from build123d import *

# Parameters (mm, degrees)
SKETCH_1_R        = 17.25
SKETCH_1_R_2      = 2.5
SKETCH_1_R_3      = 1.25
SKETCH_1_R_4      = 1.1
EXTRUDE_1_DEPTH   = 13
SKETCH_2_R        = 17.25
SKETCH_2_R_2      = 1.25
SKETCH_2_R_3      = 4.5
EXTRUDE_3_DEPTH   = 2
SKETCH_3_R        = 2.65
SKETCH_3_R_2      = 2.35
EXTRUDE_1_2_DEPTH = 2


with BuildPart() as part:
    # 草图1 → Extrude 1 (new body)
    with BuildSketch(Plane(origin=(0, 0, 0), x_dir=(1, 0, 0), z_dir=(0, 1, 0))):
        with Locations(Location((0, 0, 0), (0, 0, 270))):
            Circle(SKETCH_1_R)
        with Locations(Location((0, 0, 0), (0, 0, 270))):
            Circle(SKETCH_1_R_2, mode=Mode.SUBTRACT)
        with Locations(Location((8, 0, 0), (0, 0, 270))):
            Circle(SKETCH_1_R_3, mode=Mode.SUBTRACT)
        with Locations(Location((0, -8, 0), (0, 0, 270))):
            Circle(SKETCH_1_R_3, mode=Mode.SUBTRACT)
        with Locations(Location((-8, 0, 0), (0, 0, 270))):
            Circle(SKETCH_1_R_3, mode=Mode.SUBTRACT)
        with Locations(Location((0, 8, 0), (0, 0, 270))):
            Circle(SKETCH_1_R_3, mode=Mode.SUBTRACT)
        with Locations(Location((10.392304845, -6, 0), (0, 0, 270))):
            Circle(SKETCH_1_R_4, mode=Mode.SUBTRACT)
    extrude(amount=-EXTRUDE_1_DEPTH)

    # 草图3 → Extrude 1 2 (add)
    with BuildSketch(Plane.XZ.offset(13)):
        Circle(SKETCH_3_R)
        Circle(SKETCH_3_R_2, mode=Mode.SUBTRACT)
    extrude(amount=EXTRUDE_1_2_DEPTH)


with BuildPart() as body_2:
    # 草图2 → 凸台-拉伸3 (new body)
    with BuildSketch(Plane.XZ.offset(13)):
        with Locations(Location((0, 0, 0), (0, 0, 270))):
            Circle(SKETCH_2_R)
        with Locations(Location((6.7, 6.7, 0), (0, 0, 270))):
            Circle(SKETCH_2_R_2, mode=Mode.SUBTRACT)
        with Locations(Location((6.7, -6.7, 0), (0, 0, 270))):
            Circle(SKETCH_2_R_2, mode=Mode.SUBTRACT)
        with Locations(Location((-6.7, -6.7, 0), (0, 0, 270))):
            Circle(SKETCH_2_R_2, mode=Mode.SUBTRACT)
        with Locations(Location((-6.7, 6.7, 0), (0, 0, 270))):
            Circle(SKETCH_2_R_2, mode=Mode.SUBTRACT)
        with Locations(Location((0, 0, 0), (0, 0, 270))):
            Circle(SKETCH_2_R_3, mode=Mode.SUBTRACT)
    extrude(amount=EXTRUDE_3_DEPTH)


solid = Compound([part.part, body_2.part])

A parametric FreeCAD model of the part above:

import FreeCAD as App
import Part
import Sketcher
Q = App.Units.Quantity

doc = App.newDocument("Part")
body = doc.addObject("PartDesign::Body", "Body")

# Sketch on XZ plane
sketch1 = doc.addObject("Sketcher::SketchObject", "Sketch")
body.addObject(sketch1)
sketch1.AttachmentSupport = (doc.XZ_Plane, [""])
sketch1.MapMode = "FlatFace"
sketch1.addGeometry([
    Part.Circle(App.Vector(0, 0, 0), App.Vector(0, 0, 1), 17.25),  # 0
    Part.Circle(App.Vector(0, -8, 0), App.Vector(0, 0, 1), 1.25),  # 1
    Part.Circle(App.Vector(-8, 0, 0), App.Vector(0, 0, 1), 1.25),  # 2
    Part.Circle(App.Vector(0, 0, 0), App.Vector(0, 0, 1), 2.5),  # 3
    Part.Circle(App.Vector(0, 8, 0), App.Vector(0, 0, 1), 1.25),  # 4
    Part.Circle(App.Vector(8, 0, 0), App.Vector(0, 0, 1), 1.25),  # 5
    Part.Circle(App.Vector(10.392305, 6, 0), App.Vector(0, 0, 1), 1.1),  # 6
], False)
sketch1.addConstraint([
    Sketcher.Constraint("Coincident", 0, 3, -1, 1),
    Sketcher.Constraint("Coincident", 3, 3, -1, 1),
    Sketcher.Constraint("Equal", 1, 2),
    Sketcher.Constraint("Equal", 2, 4),
    Sketcher.Constraint("Equal", 4, 5),
    Sketcher.Constraint("Symmetric", 1, 3, 4, 3, -1, 1),
    Sketcher.Constraint("Symmetric", 2, 3, 5, 3, -1, 1),
    Sketcher.Constraint("PointOnObject", 1, 3, -2),
    Sketcher.Constraint("PointOnObject", 2, 3, -1),
    Sketcher.Constraint("Diameter", 3, Q("5 mm")),
    Sketcher.Constraint("Diameter", 0, Q("34.5 mm")),
    Sketcher.Constraint("Diameter", 1, Q("2.5 mm")),
    Sketcher.Constraint("Diameter", 6, Q("2.2 mm")),
    Sketcher.Constraint("DistanceY", 1, 3, -1, 1, Q("8 mm")),
    Sketcher.Constraint("DistanceX", 2, 3, -1, 1, Q("8 mm")),
    Sketcher.Constraint("DistanceY", -1, 1, 6, 3, Q("6 mm")),
    Sketcher.Constraint("DistanceX", -1, 1, 6, 3, Q("10.392305 mm")),
])
pad1 = doc.addObject("PartDesign::Pad", "Pad")
body.addObject(pad1)
pad1.Profile = sketch1
pad1.Length = 13

# Sketch on XZ plane
sketch2 = doc.addObject("Sketcher::SketchObject", "Sketch001")
body.addObject(sketch2)
sketch2.AttachmentSupport = (doc.XZ_Plane, [""])
sketch2.MapMode = "FlatFace"
sketch2.AttachmentOffset = App.Placement(App.Vector(0, 0, 13), App.Rotation())
sketch2.addGeometry([
    Part.Circle(App.Vector(0, 0, 0), App.Vector(0, 0, 1), 2.65),
    Part.Circle(App.Vector(0, 0, 0), App.Vector(0, 0, 1), 2.35),
], False)
sketch2.addConstraint([
    Sketcher.Constraint("Coincident", 0, 3, -1, 1),
    Sketcher.Constraint("Coincident", 1, 3, -1, 1),
    Sketcher.Constraint("Diameter", 0, Q("5.3 mm")),
    Sketcher.Constraint("Diameter", 1, Q("4.7 mm")),
])
pad2 = doc.addObject("PartDesign::Pad", "Pad001")
body.addObject(pad2)
pad2.Profile = sketch2
pad2.Length = 2
body2 = doc.addObject("PartDesign::Body", "Body001")

# Sketch on XZ plane
sketch3 = doc.addObject("Sketcher::SketchObject", "Sketch002")
body2.addObject(sketch3)
sketch3.AttachmentSupport = (doc.getObject("XZ_Plane001"), [""])
sketch3.MapMode = "FlatFace"
sketch3.AttachmentOffset = App.Placement(App.Vector(0, 0, 13), App.Rotation())
sketch3.addGeometry([
    Part.Circle(App.Vector(0, 0, 0), App.Vector(0, 0, 1), 17.25),  # 0
    Part.Circle(App.Vector(-6.7, 6.7, 0), App.Vector(0, 0, 1), 1.25),  # 1
    Part.Circle(App.Vector(-6.7, -6.7, 0), App.Vector(0, 0, 1), 1.25),  # 2
    Part.Circle(App.Vector(6.7, 6.7, 0), App.Vector(0, 0, 1), 1.25),  # 3
    Part.Circle(App.Vector(0, 0, 0), App.Vector(0, 0, 1), 4.5),  # 4
    Part.Circle(App.Vector(6.7, -6.7, 0), App.Vector(0, 0, 1), 1.25),  # 5
], False)
sketch3.addConstraint([
    Sketcher.Constraint("Coincident", 0, 3, -1, 1),
    Sketcher.Constraint("Coincident", 4, 3, -1, 1),
    Sketcher.Constraint("Equal", 1, 2),
    Sketcher.Constraint("Equal", 2, 3),
    Sketcher.Constraint("Equal", 3, 5),
    Sketcher.Constraint("Symmetric", 2, 3, 3, 3, -1, 1),
    Sketcher.Constraint("Symmetric", 1, 3, 5, 3, -1, 1),
    Sketcher.Constraint("Symmetric", 1, 3, 3, 3, -2),
    Sketcher.Constraint("Diameter", 4, Q("9 mm")),
    Sketcher.Constraint("Diameter", 0, Q("34.5 mm")),
    Sketcher.Constraint("Diameter", 1, Q("2.5 mm")),
    Sketcher.Constraint("DistanceX", 1, 3, -1, 1, Q("6.7 mm")),
    Sketcher.Constraint("DistanceY", -1, 1, 1, 3, Q("6.7 mm")),
])
pad3 = doc.addObject("PartDesign::Pad", "Pad002")
body2.addObject(pad3)
pad3.Profile = sketch3
pad3.Length = 2

doc.recompute()
